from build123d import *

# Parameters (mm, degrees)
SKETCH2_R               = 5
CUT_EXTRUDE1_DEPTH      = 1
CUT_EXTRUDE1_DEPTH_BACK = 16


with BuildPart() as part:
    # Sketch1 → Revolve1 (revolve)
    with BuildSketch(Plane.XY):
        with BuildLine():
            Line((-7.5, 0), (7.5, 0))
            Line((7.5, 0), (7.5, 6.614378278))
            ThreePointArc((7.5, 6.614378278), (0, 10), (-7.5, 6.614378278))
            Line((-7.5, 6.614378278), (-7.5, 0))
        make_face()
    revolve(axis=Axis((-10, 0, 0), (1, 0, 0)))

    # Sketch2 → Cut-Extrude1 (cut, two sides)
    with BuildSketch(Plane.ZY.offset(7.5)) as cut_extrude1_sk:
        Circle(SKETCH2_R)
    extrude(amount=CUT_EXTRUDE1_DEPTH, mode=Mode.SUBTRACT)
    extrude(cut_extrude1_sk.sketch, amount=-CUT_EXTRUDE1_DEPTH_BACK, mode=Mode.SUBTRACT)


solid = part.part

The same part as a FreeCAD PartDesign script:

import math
import FreeCAD as App
import Part
import Sketcher
Q = App.Units.Quantity

doc = App.newDocument("Part")
body = doc.addObject("PartDesign::Body", "Body")

# Sketch on XY plane
sketch1 = body.newObject("Sketcher::SketchObject", "Sketch")
sketch1.AttachmentSupport = (doc.getObject("XY_Plane"), [""])
sketch1.MapMode = "FlatFace"
sketch1.addGeometry(Part.LineSegment(App.Vector(-7.5, 0, 0), App.Vector(7.5, 0, 0)), False)
sketch1.addGeometry(Part.LineSegment(App.Vector(7.5, 0, 0), App.Vector(7.5, 6.614378, 0)), False)
sketch1.addGeometry(Part.ArcOfCircle(Part.Circle(App.Vector(0, 0, 0), App.Vector(0, 0, 1), 10), math.radians(41.409622), math.radians(138.590378)), False)
sketch1.addGeometry(Part.LineSegment(App.Vector(-7.5, 6.614378, 0), App.Vector(-7.5, 0, 0)), False)
sketch1.addConstraint(Sketcher.Constraint("Coincident", 0, 2, 1, 1))
sketch1.addConstraint(Sketcher.Constraint("Coincident", 1, 2, 2, 1))
sketch1.addConstraint(Sketcher.Constraint("Coincident", 2, 2, 3, 1))
sketch1.addConstraint(Sketcher.Constraint("Coincident", 3, 2, 0, 1))
sketch1.addConstraint(Sketcher.Constraint("Horizontal", 0))
sketch1.addConstraint(Sketcher.Constraint("Vertical", 1))
sketch1.addConstraint(Sketcher.Constraint("Vertical", 3))
sketch1.addConstraint(Sketcher.Constraint("Coincident", 2, 3, -1, 1))
sketch1.addConstraint(Sketcher.Constraint("Symmetric", 0, 2, 3, 2, -1, 1))
sketch1.addConstraint(Sketcher.Constraint("Radius", 2, Q("10 mm")))
sketch1.addConstraint(Sketcher.Constraint("DistanceX", 0, 1, 0, 2, Q("15 mm")))
revolution = body.newObject("PartDesign::Revolution", "Revolution")
revolution.Profile = sketch1
revolution.ReferenceAxis = (sketch1, ["H_Axis"])
revolution.Angle = 360

# Sketch on YZ plane
sketch2 = body.newObject("Sketcher::SketchObject", "Sketch001")
sketch2.AttachmentSupport = (doc.getObject("YZ_Plane"), [""])
sketch2.MapMode = "FlatFace"
sketch2.AttachmentOffset = App.Placement(App.Vector(0, 0, -7.5), App.Rotation())
sketch2.addGeometry(Part.Circle(App.Vector(0, 0, 0), App.Vector(0, 0, 1), 5), False)
sketch2.addConstraint(Sketcher.Constraint("Coincident", 0, 3, -1, 1))
sketch2.addConstraint(Sketcher.Constraint("Diameter", 0, Q("10 mm")))
pocket1 = body.newObject("PartDesign::Pocket", "Pocket")
pocket1.Profile = sketch2
pocket1.Type = "ThroughAll"
pocket1.Midplane = True

doc.recompute()
